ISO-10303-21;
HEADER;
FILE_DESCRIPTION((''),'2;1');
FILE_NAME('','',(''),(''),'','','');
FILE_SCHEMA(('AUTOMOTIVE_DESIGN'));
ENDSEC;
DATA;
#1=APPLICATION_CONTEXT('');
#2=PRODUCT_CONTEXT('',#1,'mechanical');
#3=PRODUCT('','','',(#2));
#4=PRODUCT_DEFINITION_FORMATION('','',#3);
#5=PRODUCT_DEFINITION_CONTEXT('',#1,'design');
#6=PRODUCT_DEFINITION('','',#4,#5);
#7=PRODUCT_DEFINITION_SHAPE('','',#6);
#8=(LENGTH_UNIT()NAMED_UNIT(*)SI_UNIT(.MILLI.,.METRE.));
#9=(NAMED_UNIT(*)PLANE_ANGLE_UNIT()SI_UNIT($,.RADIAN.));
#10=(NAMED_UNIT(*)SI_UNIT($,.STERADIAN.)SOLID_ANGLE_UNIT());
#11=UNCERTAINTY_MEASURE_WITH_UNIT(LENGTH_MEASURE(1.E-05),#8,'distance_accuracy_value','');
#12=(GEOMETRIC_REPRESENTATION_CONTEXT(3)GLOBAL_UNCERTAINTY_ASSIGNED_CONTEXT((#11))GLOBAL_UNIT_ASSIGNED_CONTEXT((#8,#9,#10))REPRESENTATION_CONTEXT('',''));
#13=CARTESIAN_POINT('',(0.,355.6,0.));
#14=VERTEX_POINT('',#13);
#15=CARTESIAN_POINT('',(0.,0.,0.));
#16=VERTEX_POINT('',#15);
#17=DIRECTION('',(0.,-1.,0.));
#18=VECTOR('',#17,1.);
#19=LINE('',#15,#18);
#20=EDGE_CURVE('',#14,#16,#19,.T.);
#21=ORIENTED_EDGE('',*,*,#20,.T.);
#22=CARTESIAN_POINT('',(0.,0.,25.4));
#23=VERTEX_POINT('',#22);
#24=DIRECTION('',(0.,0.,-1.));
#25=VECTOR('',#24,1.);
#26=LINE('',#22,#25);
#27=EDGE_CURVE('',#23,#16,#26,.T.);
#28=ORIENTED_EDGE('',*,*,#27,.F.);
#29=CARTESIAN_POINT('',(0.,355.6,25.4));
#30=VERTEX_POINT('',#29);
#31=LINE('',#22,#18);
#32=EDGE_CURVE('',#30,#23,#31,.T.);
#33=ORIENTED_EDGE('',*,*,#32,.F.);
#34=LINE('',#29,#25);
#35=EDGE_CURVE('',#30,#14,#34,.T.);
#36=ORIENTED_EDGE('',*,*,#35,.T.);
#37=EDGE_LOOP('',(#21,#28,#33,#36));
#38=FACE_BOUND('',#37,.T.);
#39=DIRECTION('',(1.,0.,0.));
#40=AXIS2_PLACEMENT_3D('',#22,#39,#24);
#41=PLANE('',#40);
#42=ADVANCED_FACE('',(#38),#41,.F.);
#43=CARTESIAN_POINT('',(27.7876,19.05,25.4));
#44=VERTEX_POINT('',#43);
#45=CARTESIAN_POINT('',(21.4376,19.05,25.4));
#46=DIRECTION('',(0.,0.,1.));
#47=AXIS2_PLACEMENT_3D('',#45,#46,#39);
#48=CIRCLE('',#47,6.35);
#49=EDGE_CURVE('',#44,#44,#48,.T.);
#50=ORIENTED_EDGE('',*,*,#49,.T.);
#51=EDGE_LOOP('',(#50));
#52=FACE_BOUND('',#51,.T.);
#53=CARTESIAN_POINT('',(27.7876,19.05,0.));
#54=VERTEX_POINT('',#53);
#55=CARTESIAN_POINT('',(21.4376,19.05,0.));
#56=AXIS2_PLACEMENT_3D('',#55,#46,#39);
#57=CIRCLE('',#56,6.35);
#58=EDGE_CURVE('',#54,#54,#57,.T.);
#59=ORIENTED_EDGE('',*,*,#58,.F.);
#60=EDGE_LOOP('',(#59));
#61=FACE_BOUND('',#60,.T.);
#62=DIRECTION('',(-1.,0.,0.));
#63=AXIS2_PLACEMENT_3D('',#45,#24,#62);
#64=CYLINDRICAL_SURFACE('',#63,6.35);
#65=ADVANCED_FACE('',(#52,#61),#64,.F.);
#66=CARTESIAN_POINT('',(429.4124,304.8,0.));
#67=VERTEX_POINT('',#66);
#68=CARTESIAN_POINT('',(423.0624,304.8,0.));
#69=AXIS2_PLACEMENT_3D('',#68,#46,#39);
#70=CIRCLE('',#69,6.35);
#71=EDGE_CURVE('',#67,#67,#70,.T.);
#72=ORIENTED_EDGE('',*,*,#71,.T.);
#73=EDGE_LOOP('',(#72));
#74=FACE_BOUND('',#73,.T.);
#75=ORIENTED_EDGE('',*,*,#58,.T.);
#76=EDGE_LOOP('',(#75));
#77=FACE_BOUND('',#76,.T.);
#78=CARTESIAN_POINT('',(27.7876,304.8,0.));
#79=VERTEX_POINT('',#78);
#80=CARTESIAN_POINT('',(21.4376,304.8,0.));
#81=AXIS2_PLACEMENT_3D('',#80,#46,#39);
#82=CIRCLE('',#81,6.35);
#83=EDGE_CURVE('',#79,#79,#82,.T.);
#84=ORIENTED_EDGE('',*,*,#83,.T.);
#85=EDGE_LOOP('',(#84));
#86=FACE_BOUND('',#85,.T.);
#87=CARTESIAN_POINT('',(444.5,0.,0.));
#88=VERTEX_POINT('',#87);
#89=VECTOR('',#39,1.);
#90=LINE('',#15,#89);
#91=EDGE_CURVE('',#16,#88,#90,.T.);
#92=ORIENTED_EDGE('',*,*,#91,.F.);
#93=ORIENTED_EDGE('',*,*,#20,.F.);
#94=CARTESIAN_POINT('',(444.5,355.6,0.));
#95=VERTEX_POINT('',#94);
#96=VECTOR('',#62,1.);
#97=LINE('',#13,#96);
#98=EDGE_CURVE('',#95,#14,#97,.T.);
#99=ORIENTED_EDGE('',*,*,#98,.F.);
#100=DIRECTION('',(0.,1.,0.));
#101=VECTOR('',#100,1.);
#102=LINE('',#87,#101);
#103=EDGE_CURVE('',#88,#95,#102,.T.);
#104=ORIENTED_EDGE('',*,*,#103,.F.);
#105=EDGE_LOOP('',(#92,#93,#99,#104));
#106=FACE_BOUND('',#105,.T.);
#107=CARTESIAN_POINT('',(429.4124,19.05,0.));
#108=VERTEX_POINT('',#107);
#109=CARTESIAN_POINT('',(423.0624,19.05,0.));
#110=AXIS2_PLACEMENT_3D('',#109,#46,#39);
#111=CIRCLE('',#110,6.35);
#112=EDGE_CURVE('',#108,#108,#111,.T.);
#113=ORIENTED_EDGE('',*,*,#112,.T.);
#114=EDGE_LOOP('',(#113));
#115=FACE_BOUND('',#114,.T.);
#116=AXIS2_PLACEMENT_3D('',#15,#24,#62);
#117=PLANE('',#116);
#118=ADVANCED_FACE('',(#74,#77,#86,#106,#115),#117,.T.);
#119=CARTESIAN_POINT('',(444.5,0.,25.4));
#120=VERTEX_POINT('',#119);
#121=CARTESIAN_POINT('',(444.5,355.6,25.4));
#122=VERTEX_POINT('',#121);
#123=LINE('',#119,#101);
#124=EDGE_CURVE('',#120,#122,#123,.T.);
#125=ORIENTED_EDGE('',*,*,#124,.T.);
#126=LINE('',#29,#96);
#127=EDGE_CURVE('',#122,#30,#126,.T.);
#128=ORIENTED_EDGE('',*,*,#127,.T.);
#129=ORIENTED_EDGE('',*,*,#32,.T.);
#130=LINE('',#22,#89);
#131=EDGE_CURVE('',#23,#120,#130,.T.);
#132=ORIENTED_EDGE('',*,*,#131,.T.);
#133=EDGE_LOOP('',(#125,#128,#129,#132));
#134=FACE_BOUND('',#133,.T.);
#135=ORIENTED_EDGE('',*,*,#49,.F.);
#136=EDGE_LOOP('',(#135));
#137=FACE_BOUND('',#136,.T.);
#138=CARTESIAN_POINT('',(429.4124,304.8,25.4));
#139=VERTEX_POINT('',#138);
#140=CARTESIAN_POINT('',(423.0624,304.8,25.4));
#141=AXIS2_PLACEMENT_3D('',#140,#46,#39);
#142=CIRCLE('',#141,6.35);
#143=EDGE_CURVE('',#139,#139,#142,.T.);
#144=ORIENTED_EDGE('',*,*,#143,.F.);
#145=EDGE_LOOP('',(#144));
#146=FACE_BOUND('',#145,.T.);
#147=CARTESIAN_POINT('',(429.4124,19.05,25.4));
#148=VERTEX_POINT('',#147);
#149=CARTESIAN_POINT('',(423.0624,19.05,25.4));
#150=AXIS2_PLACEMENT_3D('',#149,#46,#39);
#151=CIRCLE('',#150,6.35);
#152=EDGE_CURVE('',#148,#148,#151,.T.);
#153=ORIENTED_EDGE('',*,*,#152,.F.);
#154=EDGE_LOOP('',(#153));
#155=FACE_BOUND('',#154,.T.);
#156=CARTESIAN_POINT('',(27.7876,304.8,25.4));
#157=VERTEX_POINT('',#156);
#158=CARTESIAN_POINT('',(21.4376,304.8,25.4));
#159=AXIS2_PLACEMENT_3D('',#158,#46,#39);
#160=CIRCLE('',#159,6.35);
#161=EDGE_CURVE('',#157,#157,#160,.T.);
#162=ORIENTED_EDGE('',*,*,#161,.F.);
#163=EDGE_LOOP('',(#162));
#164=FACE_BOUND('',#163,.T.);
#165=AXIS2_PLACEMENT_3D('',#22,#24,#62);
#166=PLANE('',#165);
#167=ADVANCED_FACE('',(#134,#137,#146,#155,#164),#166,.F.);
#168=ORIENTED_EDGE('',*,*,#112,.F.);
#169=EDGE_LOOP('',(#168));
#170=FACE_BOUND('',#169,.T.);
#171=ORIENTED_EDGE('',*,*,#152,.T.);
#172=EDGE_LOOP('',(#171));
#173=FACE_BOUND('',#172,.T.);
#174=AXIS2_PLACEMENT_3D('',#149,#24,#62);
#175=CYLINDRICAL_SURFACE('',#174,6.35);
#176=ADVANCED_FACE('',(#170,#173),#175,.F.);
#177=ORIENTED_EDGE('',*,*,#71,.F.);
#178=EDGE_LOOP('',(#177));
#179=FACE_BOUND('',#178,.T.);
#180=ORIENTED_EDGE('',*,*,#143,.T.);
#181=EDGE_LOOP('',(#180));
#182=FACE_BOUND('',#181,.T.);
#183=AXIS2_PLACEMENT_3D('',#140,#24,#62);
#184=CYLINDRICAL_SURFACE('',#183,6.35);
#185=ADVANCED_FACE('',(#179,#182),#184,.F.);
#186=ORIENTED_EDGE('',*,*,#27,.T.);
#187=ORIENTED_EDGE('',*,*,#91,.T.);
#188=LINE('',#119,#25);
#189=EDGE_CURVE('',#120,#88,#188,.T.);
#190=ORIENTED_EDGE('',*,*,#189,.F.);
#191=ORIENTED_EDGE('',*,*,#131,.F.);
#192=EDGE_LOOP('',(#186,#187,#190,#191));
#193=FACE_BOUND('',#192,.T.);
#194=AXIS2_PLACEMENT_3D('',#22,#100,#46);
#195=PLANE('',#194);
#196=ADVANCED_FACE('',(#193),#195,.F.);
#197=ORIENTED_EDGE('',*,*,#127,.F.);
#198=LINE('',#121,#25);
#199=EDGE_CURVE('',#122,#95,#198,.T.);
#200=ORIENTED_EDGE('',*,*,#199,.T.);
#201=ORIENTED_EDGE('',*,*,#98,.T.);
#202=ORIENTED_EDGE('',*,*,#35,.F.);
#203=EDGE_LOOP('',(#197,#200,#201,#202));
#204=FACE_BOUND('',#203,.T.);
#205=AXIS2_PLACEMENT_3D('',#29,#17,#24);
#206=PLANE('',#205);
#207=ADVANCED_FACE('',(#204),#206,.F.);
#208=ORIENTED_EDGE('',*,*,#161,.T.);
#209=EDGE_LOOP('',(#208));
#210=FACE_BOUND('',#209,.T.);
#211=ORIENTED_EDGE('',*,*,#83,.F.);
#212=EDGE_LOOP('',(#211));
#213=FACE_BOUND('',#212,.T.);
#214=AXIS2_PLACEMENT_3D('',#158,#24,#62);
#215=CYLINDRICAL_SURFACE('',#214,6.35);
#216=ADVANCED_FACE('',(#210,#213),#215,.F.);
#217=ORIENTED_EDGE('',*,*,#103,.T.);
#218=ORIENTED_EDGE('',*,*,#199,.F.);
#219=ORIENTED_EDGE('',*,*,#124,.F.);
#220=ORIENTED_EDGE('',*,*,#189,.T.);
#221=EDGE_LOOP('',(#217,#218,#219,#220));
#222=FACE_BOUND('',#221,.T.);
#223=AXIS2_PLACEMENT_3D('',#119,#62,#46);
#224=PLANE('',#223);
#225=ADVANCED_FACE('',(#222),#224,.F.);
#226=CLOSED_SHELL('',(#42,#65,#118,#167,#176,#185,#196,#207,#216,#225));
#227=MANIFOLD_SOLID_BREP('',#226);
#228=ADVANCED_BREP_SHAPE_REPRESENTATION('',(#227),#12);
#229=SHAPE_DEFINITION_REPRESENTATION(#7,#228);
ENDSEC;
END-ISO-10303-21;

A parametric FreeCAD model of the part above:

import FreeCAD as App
import Part
import Sketcher

V = App.Vector
Q = App.Units.Quantity

doc = App.newDocument("Part")
body = doc.addObject("PartDesign::Body", "Body")

# Sketch on XY plane
sketch1 = doc.addObject("Sketcher::SketchObject", "Sketch")
body.addObject(sketch1)
sketch1.AttachmentSupport = (doc.XY_Plane, [""])
sketch1.MapMode = "FlatFace"
sketch1.addGeometry(Part.LineSegment(V(0, 356, 0), V(0, 0, 0)), False)
sketch1.addGeometry(Part.LineSegment(V(0, 0, 0), V(444, 0, 0)), False)
sketch1.addGeometry(Part.LineSegment(V(444, 0, 0), V(444, 356, 0)), False)
sketch1.addGeometry(Part.LineSegment(V(444, 356, 0), V(0, 356, 0)), False)
sketch1.addConstraint(Sketcher.Constraint("Coincident", 0, 2, 1, 1))
sketch1.addConstraint(Sketcher.Constraint("Coincident", 1, 2, 2, 1))
sketch1.addConstraint(Sketcher.Constraint("Coincident", 2, 2, 3, 1))
sketch1.addConstraint(Sketcher.Constraint("Coincident", 3, 2, 0, 1))
sketch1.addConstraint(Sketcher.Constraint("Vertical", 0))
sketch1.addConstraint(Sketcher.Constraint("Horizontal", 1))
sketch1.addConstraint(Sketcher.Constraint("Vertical", 2))
sketch1.addConstraint(Sketcher.Constraint("Horizontal", 3))
sketch1.addConstraint(Sketcher.Constraint("Coincident", 0, 2, -1, 1))
sketch1.addConstraint(Sketcher.Constraint("DistanceY", 0, 2, 0, 1, Q("14 in")))
sketch1.addConstraint(Sketcher.Constraint("DistanceX", 1, 1, 1, 2, Q("17.5 in")))
pad1 = doc.addObject("PartDesign::Pad", "Pad")
body.addObject(pad1)
pad1.Profile = sketch1
pad1.Length = Q("1 in")

# Sketch on XY plane
sketch2 = doc.addObject("Sketcher::SketchObject", "Sketch001")
body.addObject(sketch2)
sketch2.AttachmentSupport = (doc.XY_Plane, [""])
sketch2.MapMode = "FlatFace"
sketch2.addGeometry(Part.Circle(V(21, 19, 0), V(0, 0, 1), 6), False)
sketch2.addGeometry(Part.Circle(V(423, 19, 0), V(0, 0, 1), 6), False)
sketch2.addGeometry(Part.Circle(V(21, 305, 0), V(0, 0, 1), 6), False)
sketch2.addGeometry(Part.Circle(V(423, 305, 0), V(0, 0, 1), 6), False)
sketch2.addConstraint(Sketcher.Constraint("Equal", 0, 1))
sketch2.addConstraint(Sketcher.Constraint("Equal", 1, 2))
sketch2.addConstraint(Sketcher.Constraint("Equal", 2, 3))
sketch2.addConstraint(Sketcher.Constraint("Horizontal", 0, 3, 1, 3))
sketch2.addConstraint(Sketcher.Constraint("Horizontal", 2, 3, 3, 3))
sketch2.addConstraint(Sketcher.Constraint("Vertical", 0, 3, 2, 3))
sketch2.addConstraint(Sketcher.Constraint("Vertical", 1, 3, 3, 3))
sketch2.addConstraint(Sketcher.Constraint("Diameter", 0, Q("0.5 in")))
sketch2.addConstraint(Sketcher.Constraint("DistanceY", -1, 1, 2, 3, Q("12 in")))
sketch2.addConstraint(Sketcher.Constraint("DistanceY", -1, 1, 0, 3, Q("0.75 in")))
sketch2.addConstraint(Sketcher.Constraint("DistanceX", -1, 1, 0, 3, Q("0.844 in")))
sketch2.addConstraint(Sketcher.Constraint("DistanceX", -1, 1, 1, 3, Q("16.656 in")))
pocket1 = doc.addObject("PartDesign::Pocket", "Pocket")
body.addObject(pocket1)
pocket1.Profile = sketch2
pocket1.Type = "ThroughAll"
pocket1.Reversed = True

doc.recompute()
